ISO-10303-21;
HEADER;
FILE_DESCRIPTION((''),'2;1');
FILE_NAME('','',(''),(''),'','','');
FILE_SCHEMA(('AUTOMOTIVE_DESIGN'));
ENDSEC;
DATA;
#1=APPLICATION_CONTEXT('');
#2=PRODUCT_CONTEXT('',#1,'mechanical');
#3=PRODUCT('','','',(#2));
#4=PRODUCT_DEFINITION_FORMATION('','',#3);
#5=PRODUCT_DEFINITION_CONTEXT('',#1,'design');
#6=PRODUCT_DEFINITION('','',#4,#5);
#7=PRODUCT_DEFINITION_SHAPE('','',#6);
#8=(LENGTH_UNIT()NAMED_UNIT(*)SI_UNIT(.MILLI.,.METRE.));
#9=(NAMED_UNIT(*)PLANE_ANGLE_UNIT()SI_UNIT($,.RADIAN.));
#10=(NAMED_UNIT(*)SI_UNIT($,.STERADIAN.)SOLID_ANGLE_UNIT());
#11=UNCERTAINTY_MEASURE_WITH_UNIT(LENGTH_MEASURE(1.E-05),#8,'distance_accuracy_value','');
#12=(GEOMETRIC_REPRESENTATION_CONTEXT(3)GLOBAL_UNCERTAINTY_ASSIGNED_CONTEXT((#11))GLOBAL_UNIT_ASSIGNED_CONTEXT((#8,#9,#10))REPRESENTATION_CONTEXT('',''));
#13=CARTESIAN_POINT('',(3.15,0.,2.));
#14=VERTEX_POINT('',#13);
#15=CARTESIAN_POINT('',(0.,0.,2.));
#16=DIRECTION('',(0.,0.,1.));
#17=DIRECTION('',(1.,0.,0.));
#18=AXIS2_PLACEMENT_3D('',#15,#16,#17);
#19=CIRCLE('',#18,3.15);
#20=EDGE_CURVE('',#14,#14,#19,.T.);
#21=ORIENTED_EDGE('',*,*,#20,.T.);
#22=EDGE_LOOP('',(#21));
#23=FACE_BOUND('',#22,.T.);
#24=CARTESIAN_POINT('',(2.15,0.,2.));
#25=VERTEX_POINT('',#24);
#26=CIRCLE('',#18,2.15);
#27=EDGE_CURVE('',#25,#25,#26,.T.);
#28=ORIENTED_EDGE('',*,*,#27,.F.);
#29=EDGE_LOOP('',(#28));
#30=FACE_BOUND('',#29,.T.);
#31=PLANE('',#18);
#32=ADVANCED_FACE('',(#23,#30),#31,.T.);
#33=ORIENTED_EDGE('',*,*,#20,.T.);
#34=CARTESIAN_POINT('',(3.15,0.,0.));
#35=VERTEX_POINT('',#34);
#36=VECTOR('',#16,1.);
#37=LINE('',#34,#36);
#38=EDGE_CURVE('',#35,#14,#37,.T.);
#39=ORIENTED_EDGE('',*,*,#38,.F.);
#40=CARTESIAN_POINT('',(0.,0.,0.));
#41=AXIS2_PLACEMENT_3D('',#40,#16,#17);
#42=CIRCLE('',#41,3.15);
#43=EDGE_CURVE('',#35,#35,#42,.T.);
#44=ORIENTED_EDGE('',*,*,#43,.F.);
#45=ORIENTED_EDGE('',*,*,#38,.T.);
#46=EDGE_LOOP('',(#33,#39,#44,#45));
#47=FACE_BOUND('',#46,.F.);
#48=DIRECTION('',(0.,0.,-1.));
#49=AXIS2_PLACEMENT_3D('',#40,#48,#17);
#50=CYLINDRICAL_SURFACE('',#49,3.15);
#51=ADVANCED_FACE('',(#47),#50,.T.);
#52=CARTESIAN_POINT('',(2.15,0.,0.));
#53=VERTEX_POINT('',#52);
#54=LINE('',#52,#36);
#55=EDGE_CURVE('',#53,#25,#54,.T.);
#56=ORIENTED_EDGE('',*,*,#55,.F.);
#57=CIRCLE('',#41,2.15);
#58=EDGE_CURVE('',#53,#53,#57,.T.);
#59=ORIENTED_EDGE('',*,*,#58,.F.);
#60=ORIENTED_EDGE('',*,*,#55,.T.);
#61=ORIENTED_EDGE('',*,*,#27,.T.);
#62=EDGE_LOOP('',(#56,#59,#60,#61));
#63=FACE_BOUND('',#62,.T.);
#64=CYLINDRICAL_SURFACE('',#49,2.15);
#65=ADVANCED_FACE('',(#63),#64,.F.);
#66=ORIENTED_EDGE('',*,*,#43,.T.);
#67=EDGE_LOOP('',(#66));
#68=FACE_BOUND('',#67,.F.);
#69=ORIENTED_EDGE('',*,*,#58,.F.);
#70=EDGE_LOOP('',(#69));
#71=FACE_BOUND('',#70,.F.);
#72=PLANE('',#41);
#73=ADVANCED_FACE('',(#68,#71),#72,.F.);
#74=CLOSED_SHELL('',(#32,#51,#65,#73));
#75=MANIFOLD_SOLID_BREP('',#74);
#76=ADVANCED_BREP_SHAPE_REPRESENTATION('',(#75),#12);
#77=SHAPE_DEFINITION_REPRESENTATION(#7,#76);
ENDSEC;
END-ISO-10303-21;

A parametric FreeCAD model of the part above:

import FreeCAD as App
import Part
import Sketcher
from FreeCAD import Vector
Q = App.Units.Quantity

doc = App.newDocument("Part")
body = doc.addObject("PartDesign::Body", "Body")

sketch1 = body.newObject("Sketcher::SketchObject", "Sketch")
sketch1.AttachmentSupport = (doc.getObject("XY_Plane"), [""])
sketch1.MapMode = "FlatFace"
sketch1.addGeometry([
    Part.Circle(Vector(0, 0, 0), Vector(0, 0, 1), 3.1),
    Part.Circle(Vector(0, 0, 0), Vector(0, 0, 1), 2.1),
], False)
sketch1.addConstraint([
    Sketcher.Constraint("Coincident", 0, 3, -1, 1),
    Sketcher.Constraint("Coincident", 1, 3, -1, 1),
    Sketcher.Constraint("Diameter", 1, Q("4.3 mm")),
    Sketcher.Constraint("Diameter", 0, Q("6.3 mm")),
])
pad1 = body.newObject("PartDesign::Pad", "Pad")
pad1.Profile = sketch1
pad1.Length = 2

doc.recompute()
